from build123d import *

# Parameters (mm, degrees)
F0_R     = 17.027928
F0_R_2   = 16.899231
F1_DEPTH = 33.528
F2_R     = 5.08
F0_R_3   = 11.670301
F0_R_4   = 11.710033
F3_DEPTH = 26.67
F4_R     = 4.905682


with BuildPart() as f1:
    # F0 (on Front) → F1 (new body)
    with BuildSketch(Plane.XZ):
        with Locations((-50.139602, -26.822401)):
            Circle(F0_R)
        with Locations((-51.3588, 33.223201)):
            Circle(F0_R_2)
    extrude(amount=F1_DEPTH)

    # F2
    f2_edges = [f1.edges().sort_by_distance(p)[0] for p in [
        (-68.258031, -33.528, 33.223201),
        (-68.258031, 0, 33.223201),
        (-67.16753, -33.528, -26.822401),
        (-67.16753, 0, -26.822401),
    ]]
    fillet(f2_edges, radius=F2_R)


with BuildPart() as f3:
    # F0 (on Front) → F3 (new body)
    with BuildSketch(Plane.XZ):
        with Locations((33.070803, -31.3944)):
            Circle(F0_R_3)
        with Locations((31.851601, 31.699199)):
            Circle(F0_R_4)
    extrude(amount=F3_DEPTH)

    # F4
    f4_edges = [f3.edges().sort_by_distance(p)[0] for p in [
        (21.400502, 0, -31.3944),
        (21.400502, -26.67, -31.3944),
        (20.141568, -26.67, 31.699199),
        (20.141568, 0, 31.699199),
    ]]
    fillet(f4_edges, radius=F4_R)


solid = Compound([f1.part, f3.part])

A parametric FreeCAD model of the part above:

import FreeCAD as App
import Part
import Sketcher
from FreeCAD import Vector
Q = App.Units.Quantity


def edges_at(feature, points):
    """Names of the edges that pass closest to the given points."""
    edges = feature.Shape.Edges
    near = lambda p: min(range(len(edges)), key=lambda i: edges[i].distToShape(Part.Vertex(*p))[0])
    return sorted({f"Edge{near(p) + 1}" for p in points})

doc = App.newDocument("Part")
params = doc.addObject("Spreadsheet::Sheet", "Params")
for row, (alias, value) in enumerate([
    ("pad1_length", "1.32 in"),
    ("fillet_radius", "0.2 in"),
    ("pad2_length", "1.05 in"),
    ("fillet2_radius", "4.905682 mm"),
], start=1):
    params.set(f"A{row}", alias)
    params.set(f"B{row}", "=" + value)
    params.setAlias(f"B{row}", alias)

body = doc.addObject("PartDesign::Body", "Body")
body.AllowCompound = True

sketch1 = body.newObject("Sketcher::SketchObject", "Sketch")
sketch1.AttachmentSupport = (doc.getObject("XZ_Plane"), [""])
sketch1.MapMode = "FlatFace"
sketch1.addGeometry([
    Part.Circle(Vector(-50.139602, -26.822401, 0), Vector(0, 0, 1), 17.027928),
    Part.Circle(Vector(-51.3588, 33.223201, 0), Vector(0, 0, 1), 16.899231),
], False)
sketch1.addConstraint([
    Sketcher.Constraint("DistanceX", 0, 3, -1, 1, Q("1.9740001 in")),
    Sketcher.Constraint("DistanceY", 0, 3, -1, 1, Q("1.056 in")),
    Sketcher.Constraint("DistanceX", 1, 3, -1, 1, Q("2.022 in")),
    Sketcher.Constraint("DistanceY", -1, 1, 1, 3, Q("1.308 in")),
    Sketcher.Constraint("Diameter", 0, 34.055856),
    Sketcher.Constraint("Diameter", 1, 33.798462),
])
pad1 = body.newObject("PartDesign::Pad", "Pad")
pad1.Profile = sketch1
pad1.setExpression("Length", "Params.pad1_length")
doc.recompute()

fillet = body.newObject("PartDesign::Fillet", "Fillet")
fillet.Base = (pad1, edges_at(pad1, [
    (-68.258, -33.528, 33.223),
    (-68.258, 0, 33.223),
    (-67.168, -33.528, -26.822),
    (-67.168, 0, -26.822),
]))
fillet.setExpression("Radius", "Params.fillet_radius")
body2 = doc.addObject("PartDesign::Body", "Body001")
body2.AllowCompound = True

sketch2 = body2.newObject("Sketcher::SketchObject", "Sketch001")
sketch2.AttachmentSupport = (doc.getObject("XZ_Plane001"), [""])
sketch2.MapMode = "FlatFace"
sketch2.addGeometry([
    Part.Circle(Vector(33.070803, -31.3944, 0), Vector(0, 0, 1), 11.670301),
    Part.Circle(Vector(31.851601, 31.699199, 0), Vector(0, 0, 1), 11.710033),
], False)
sketch2.addConstraint([
    Sketcher.Constraint("DistanceX", -1, 1, 0, 3, Q("1.3020001 in")),
    Sketcher.Constraint("DistanceY", 0, 3, -1, 1, Q("1.236 in")),
    Sketcher.Constraint("DistanceX", -1, 1, 1, 3, Q("1.254 in")),
    Sketcher.Constraint("DistanceY", -1, 1, 1, 3, Q("1.248 in")),
    Sketcher.Constraint("Diameter", 0, 23.340602),
    Sketcher.Constraint("Diameter", 1, 23.420066),
])
pad2 = body2.newObject("PartDesign::Pad", "Pad001")
pad2.Profile = sketch2
pad2.setExpression("Length", "Params.pad2_length")
doc.recompute()

fillet2 = body2.newObject("PartDesign::Fillet", "Fillet001")
fillet2.Base = (pad2, edges_at(pad2, [
    (21.401, 0, -31.394),
    (21.401, -26.67, -31.394),
    (20.142, -26.67, 31.699),
    (20.142, 0, 31.699),
]))
fillet2.setExpression("Radius", "Params.fillet2_radius")

doc.recompute()
